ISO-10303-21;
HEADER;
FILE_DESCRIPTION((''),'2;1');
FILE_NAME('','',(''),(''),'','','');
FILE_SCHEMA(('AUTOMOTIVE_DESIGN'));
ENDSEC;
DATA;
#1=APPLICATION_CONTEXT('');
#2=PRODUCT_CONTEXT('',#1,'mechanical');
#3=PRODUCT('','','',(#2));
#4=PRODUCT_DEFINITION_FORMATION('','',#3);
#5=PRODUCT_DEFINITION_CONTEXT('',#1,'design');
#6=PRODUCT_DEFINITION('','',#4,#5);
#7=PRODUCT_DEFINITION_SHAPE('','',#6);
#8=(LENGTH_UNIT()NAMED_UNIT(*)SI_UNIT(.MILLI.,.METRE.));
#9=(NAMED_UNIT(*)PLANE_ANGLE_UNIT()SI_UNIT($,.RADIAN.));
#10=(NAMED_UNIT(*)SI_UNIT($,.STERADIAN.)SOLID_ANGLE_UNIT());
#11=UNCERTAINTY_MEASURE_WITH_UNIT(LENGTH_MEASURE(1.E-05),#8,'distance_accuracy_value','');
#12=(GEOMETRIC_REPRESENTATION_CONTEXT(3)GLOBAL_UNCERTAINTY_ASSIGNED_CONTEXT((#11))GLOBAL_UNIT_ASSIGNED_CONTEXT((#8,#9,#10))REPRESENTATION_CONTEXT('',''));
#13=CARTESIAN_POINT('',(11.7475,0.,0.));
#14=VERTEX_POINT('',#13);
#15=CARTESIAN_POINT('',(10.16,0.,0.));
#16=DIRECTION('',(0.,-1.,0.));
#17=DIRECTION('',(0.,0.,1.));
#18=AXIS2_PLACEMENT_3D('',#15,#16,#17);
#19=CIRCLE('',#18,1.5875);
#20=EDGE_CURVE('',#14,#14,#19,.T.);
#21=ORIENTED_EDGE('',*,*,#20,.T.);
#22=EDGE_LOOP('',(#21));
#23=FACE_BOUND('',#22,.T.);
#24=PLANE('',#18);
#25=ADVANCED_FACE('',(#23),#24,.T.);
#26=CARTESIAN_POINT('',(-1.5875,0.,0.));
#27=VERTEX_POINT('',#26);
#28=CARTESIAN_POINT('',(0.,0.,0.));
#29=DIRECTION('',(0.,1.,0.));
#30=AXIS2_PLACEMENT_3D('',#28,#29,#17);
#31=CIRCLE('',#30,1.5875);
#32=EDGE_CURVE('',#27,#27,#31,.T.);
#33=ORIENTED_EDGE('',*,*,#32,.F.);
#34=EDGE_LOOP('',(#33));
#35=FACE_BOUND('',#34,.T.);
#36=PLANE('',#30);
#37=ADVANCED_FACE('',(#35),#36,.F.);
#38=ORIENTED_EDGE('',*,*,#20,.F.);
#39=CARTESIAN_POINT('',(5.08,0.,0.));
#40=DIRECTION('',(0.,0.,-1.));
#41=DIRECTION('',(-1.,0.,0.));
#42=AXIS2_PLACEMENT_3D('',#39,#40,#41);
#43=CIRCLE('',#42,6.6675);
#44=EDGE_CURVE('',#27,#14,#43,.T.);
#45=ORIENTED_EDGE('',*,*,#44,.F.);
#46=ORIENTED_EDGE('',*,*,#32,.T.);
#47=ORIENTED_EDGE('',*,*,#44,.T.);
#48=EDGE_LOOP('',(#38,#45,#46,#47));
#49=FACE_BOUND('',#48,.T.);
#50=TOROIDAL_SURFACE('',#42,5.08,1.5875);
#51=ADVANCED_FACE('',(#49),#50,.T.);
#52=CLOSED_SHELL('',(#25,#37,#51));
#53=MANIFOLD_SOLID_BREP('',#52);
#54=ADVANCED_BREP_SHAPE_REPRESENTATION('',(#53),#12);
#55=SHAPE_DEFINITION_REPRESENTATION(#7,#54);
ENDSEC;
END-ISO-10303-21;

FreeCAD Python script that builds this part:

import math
import FreeCAD as App
import Part
import Sketcher
from FreeCAD import Vector
Q = App.Units.Quantity

doc = App.newDocument("Part")
body = doc.addObject("PartDesign::Body", "Body")

sketch1 = doc.addObject("Sketcher::SketchObject", "Sketch")
body.addObject(sketch1)
sketch1.AttachmentSupport = (doc.XZ_Plane, [""])
sketch1.MapMode = "FlatFace"
sketch1.addGeometry(Part.Circle(Vector(0, 0, 0), Vector(0, 0, 1), 1.6), False)
sketch1.addConstraint([
    Sketcher.Constraint("Coincident", 0, 3, -1, 1),
    Sketcher.Constraint("Diameter", 0, Q("0.125 in")),
])

sketch2 = doc.addObject("Sketcher::SketchObject", "Sketch001")
body.addObject(sketch2)
sketch2.AttachmentSupport = (doc.XY_Plane, [""])
sketch2.MapMode = "FlatFace"
sketch2.addGeometry(Part.ArcOfCircle(Part.Circle(Vector(5, 0, 0), Vector(0, 0, 1), 5), math.radians(0), math.radians(180)), False)
sketch2.addConstraint([
    Sketcher.Constraint("Coincident", 0, 2, -1, 1),
    Sketcher.Constraint("PointOnObject", 0, 3, -1),
    Sketcher.Constraint("PointOnObject", 0, 1, -1),
    Sketcher.Constraint("Radius", 0, Q("0.2 in")),
])
doc.recompute()

additivepipe = doc.addObject("PartDesign::AdditivePipe", "AdditivePipe")
body.addObject(additivepipe)
additivepipe.Profile = sketch1
additivepipe.Spine = (sketch2, ["Edge1"])

doc.recompute()
